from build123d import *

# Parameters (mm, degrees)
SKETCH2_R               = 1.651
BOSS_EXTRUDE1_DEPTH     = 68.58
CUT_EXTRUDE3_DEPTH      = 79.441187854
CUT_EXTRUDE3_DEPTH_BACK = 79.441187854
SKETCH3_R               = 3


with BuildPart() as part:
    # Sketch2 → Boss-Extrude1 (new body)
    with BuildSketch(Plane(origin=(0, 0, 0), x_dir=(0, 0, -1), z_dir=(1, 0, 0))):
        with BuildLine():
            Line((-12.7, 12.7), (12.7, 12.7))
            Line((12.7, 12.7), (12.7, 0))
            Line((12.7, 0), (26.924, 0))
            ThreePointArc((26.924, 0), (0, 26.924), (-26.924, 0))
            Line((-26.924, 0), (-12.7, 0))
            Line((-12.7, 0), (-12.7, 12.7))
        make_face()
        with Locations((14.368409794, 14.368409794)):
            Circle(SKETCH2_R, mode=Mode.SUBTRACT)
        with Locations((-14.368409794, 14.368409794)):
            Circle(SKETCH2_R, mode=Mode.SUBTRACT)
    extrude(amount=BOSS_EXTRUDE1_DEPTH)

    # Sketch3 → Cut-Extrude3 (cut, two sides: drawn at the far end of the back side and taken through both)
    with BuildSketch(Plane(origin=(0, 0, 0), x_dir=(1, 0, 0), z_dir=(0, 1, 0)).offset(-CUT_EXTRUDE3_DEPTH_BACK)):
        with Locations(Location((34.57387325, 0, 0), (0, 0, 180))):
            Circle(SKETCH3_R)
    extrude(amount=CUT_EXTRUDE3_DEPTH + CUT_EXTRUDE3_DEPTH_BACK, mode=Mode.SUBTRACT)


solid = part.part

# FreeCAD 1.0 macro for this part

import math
import FreeCAD as App
import Part
import Sketcher
Q = App.Units.Quantity

doc = App.newDocument("Part")
body = doc.addObject("PartDesign::Body", "Body")

# Sketch on YZ plane
sketch1 = body.newObject("Sketcher::SketchObject", "Sketch")
sketch1.AttachmentSupport = (doc.getObject("YZ_Plane"), [""])
sketch1.MapMode = "FlatFace"
sketch1.addGeometry([
    Part.LineSegment(App.Vector(12.7, 12.7, 0), App.Vector(12.7, -12.7, 0)),  # 0
    Part.LineSegment(App.Vector(12.7, -12.7, 0), App.Vector(0, -12.7, 0)),  # 1
    Part.LineSegment(App.Vector(0, -12.7, 0), App.Vector(0, -26.9, 0)),  # 2
    Part.ArcOfCircle(Part.Circle(App.Vector(0, 0, 0), App.Vector(0, 0, 1), 26.9), math.radians(-90), math.radians(90)),  # 3
    Part.LineSegment(App.Vector(0, 26.9, 0), App.Vector(0, 12.7, 0)),  # 4
    Part.LineSegment(App.Vector(0, 12.7, 0), App.Vector(12.7, 12.7, 0)),  # 5
    Part.Circle(App.Vector(14.4, 14.4, 0), App.Vector(0, 0, 1), 1.7),  # 6
    Part.Circle(App.Vector(14.4, -14.4, 0), App.Vector(0, 0, 1), 1.7),  # 7
], False)
sketch1.addConstraint([
    Sketcher.Constraint("Coincident", 0, 2, 1, 1),
    Sketcher.Constraint("Coincident", 1, 2, 2, 1),
    Sketcher.Constraint("Coincident", 2, 2, 3, 1),
    Sketcher.Constraint("Coincident", 3, 2, 4, 1),
    Sketcher.Constraint("Coincident", 4, 2, 5, 1),
    Sketcher.Constraint("Coincident", 5, 2, 0, 1),
    Sketcher.Constraint("Vertical", 0),
    Sketcher.Constraint("Horizontal", 1),
    Sketcher.Constraint("Vertical", 2),
    Sketcher.Constraint("Vertical", 4),
    Sketcher.Constraint("Horizontal", 5),
    Sketcher.Constraint("Coincident", 3, 3, -1, 1),
    Sketcher.Constraint("Equal", 6, 7),
    Sketcher.Constraint("Symmetric", 1, 2, 4, 2, -1, 1),
    Sketcher.Constraint("Symmetric", 6, 3, 7, 3, -1),
    Sketcher.Constraint("PointOnObject", 1, 2, -2),
    Sketcher.Constraint("Diameter", 6, Q("0.13 in")),
    Sketcher.Constraint("DistanceY", 0, 2, 0, 1, Q("1 in")),
    Sketcher.Constraint("Radius", 3, Q("1.06 in")),
    Sketcher.Constraint("DistanceX", 1, 2, 1, 1, Q("0.5 in")),
    Sketcher.Constraint("DistanceX", -1, 1, 6, 3, Q("14.36841 mm")),
    Sketcher.Constraint("DistanceY", -1, 1, 6, 3, Q("14.36841 mm")),
])
pad1 = body.newObject("PartDesign::Pad", "Pad")
pad1.Profile = sketch1
pad1.Length = Q("2.7 in")

# Sketch on XZ plane
sketch2 = body.newObject("Sketcher::SketchObject", "Sketch001")
sketch2.AttachmentSupport = (doc.getObject("XZ_Plane"), [""])
sketch2.MapMode = "FlatFace"
sketch2.addGeometry(Part.Circle(App.Vector(34.6, 0, 0), App.Vector(0, 0, 1), 3), False)
sketch2.addConstraint([
    Sketcher.Constraint("PointOnObject", 0, 3, -1),
    Sketcher.Constraint("Diameter", 0, Q("6 mm")),
    Sketcher.Constraint("DistanceX", -1, 1, 0, 3, Q("34.573873 mm")),
])
pocket1 = body.newObject("PartDesign::Pocket", "Pocket")
pocket1.Profile = sketch2
pocket1.Type = "ThroughAll"
pocket1.Midplane = True

doc.recompute()
